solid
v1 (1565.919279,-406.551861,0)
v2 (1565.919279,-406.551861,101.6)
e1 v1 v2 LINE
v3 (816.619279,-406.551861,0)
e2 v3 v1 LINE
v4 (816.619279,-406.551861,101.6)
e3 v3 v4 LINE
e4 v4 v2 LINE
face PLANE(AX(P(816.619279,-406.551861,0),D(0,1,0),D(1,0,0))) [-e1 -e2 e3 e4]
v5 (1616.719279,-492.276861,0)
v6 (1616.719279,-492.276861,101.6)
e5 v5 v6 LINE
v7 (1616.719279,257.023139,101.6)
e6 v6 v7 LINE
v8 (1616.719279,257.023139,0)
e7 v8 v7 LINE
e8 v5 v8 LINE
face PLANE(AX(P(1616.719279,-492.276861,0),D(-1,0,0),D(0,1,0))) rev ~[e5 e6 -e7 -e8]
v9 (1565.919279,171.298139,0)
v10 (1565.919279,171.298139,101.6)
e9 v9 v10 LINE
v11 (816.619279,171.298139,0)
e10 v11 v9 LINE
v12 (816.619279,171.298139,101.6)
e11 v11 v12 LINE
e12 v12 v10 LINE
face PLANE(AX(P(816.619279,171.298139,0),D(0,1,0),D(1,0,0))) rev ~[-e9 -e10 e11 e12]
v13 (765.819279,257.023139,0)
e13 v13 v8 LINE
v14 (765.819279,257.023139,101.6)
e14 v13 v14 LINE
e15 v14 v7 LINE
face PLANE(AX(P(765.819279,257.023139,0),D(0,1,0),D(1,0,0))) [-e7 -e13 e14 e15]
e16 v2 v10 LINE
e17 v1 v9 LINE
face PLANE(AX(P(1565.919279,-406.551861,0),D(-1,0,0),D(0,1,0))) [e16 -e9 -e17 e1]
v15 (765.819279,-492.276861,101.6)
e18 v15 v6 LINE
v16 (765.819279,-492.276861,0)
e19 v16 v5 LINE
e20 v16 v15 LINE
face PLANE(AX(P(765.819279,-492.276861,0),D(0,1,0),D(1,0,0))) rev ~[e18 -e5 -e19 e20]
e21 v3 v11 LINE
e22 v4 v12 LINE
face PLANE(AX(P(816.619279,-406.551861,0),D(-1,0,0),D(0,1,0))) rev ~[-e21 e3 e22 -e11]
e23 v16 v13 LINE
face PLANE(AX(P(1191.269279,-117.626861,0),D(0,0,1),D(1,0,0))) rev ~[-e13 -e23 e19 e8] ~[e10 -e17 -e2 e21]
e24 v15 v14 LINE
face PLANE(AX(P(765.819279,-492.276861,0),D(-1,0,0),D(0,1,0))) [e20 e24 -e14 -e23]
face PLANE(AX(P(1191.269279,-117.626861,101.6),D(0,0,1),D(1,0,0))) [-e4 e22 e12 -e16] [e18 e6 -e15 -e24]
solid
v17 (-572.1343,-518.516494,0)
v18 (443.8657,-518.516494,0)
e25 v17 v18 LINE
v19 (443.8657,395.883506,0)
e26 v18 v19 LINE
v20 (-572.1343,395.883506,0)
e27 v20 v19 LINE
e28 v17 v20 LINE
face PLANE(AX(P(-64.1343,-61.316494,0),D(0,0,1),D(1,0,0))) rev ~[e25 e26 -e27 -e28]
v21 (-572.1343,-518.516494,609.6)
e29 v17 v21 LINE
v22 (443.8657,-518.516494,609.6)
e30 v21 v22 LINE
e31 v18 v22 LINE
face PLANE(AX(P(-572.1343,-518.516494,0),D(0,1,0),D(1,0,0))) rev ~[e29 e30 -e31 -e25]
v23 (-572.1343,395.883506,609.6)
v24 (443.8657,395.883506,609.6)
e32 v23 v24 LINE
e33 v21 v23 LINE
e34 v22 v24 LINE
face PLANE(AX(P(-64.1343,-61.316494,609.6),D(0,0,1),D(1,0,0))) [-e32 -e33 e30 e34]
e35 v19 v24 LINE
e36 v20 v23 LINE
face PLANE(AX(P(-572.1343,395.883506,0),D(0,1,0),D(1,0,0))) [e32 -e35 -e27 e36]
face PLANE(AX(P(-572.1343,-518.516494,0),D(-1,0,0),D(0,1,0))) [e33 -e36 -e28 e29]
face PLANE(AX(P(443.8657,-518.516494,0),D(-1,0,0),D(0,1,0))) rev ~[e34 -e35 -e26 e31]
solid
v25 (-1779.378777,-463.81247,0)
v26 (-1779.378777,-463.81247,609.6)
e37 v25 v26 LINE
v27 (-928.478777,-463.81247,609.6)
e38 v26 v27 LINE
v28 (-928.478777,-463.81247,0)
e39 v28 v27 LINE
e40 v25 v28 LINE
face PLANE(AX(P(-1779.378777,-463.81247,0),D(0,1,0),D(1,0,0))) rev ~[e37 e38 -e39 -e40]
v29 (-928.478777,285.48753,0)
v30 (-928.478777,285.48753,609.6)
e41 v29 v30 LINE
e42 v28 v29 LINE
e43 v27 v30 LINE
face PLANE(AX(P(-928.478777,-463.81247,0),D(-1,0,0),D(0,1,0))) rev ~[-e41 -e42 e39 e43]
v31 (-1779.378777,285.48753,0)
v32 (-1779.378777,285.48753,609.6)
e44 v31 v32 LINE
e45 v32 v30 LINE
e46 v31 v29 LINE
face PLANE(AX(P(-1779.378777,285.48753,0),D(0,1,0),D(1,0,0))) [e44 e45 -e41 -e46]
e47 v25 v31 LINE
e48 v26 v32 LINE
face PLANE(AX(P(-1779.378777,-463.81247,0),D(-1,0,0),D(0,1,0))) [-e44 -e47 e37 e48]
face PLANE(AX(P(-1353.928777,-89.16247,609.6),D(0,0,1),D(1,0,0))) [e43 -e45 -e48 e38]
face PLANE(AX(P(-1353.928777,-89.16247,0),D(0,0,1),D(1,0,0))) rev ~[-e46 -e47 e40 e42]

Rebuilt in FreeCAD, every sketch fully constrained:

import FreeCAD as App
import Part
import Sketcher

V = App.Vector
Q = App.Units.Quantity


def add_polygon(sketch, points):
    """Adds a closed chain of lines whose ends are joined by coincident constraints."""
    first, n = sketch.GeometryCount, len(points)
    for a, b in zip(points, points[1:] + points[:1]):
        sketch.addGeometry(Part.LineSegment(App.Vector(*a, 0), App.Vector(*b, 0)), False)
    for i in range(n):
        sketch.addConstraint(Sketcher.Constraint("Coincident", first + i, 2, first + (i + 1) % n, 1))

doc = App.newDocument("Part")
body = doc.addObject("PartDesign::Body", "Body")

# Sketch on XY plane
sketch1 = body.newObject("Sketcher::SketchObject", "Sketch")
sketch1.AttachmentSupport = (doc.getObject("XY_Plane"), [""])
sketch1.MapMode = "FlatFace"
add_polygon(sketch1, [(-572, 396), (-572, -519), (444, -519), (444, 396)])  # lines 0-3
sketch1.addConstraint(Sketcher.Constraint("Vertical", 0))
sketch1.addConstraint(Sketcher.Constraint("Horizontal", 1))
sketch1.addConstraint(Sketcher.Constraint("Vertical", 2))
sketch1.addConstraint(Sketcher.Constraint("Horizontal", 3))
sketch1.addConstraint(Sketcher.Constraint("DistanceX", 1, 1, 1, 2, Q("40 in")))
sketch1.addConstraint(Sketcher.Constraint("DistanceY", 0, 2, 0, 1, Q("36 in")))
sketch1.addConstraint(Sketcher.Constraint("DistanceX", 0, 2, -1, 1, Q("572.1343 mm")))
sketch1.addConstraint(Sketcher.Constraint("DistanceY", 0, 2, -1, 1, Q("518.516494 mm")))
pad1 = body.newObject("PartDesign::Pad", "Pad")
pad1.Profile = sketch1
pad1.Length = Q("24 in")
body2 = doc.addObject("PartDesign::Body", "Body001")

# Sketch on XY plane
sketch2 = body2.newObject("Sketcher::SketchObject", "Sketch001")
sketch2.AttachmentSupport = (doc.getObject("XY_Plane001"), [""])
sketch2.MapMode = "FlatFace"
add_polygon(sketch2, [(-1779, 285), (-1779, -464), (-928, -464), (-928, 285)])  # lines 0-3
sketch2.addConstraint(Sketcher.Constraint("Vertical", 0))
sketch2.addConstraint(Sketcher.Constraint("Horizontal", 1))
sketch2.addConstraint(Sketcher.Constraint("Vertical", 2))
sketch2.addConstraint(Sketcher.Constraint("Horizontal", 3))
sketch2.addConstraint(Sketcher.Constraint("DistanceX", 1, 1, 1, 2, Q("33.5 in")))
sketch2.addConstraint(Sketcher.Constraint("DistanceY", 0, 2, 0, 1, Q("29.5 in")))
sketch2.addConstraint(Sketcher.Constraint("DistanceY", 0, 2, -1, 1, Q("463.81247 mm")))
sketch2.addConstraint(Sketcher.Constraint("DistanceX", 0, 2, -1, 1, Q("1779.378777 mm")))
pad2 = body2.newObject("PartDesign::Pad", "Pad001")
pad2.Profile = sketch2
pad2.Length = Q("24 in")
body3 = doc.addObject("PartDesign::Body", "Body002")

# Sketch on XY plane
sketch3 = body3.newObject("Sketcher::SketchObject", "Sketch002")
sketch3.AttachmentSupport = (doc.getObject("XY_Plane002"), [""])
sketch3.MapMode = "FlatFace"
add_polygon(sketch3, [(766, 257), (766, -492), (1617, -492), (1617, 257)])  # lines 0-3
add_polygon(sketch3, [(1566, -407), (817, -407), (817, 171), (1566, 171)])  # lines 4-7
sketch3.addConstraint(Sketcher.Constraint("Vertical", 0))
sketch3.addConstraint(Sketcher.Constraint("Horizontal", 1))
sketch3.addConstraint(Sketcher.Constraint("Vertical", 2))
sketch3.addConstraint(Sketcher.Constraint("Horizontal", 3))
sketch3.addConstraint(Sketcher.Constraint("Horizontal", 4))
sketch3.addConstraint(Sketcher.Constraint("Vertical", 5))
sketch3.addConstraint(Sketcher.Constraint("Horizontal", 6))
sketch3.addConstraint(Sketcher.Constraint("Vertical", 7))
sketch3.addConstraint(Sketcher.Constraint("Equal", 6, 0))
sketch3.addConstraint(Sketcher.Constraint("DistanceX", 1, 1, 1, 2, Q("33.5 in")))
sketch3.addConstraint(Sketcher.Constraint("DistanceX", 4, 2, 4, 1, Q("29.5 in")))
sketch3.addConstraint(Sketcher.Constraint("DistanceX", 0, 2, 4, 2, Q("2 in")))
sketch3.addConstraint(Sketcher.Constraint("DistanceY", 5, 1, 5, 2, Q("22.75 in")))
sketch3.addConstraint(Sketcher.Constraint("DistanceY", 0, 2, 4, 2, Q("3.375 in")))
sketch3.addConstraint(Sketcher.Constraint("DistanceX", -1, 1, 0, 2, Q("765.819279 mm")))
sketch3.addConstraint(Sketcher.Constraint("DistanceY", 0, 2, -1, 1, Q("492.276861 mm")))
pad3 = body3.newObject("PartDesign::Pad", "Pad002")
pad3.Profile = sketch3
pad3.Length = Q("4 in")

doc.recompute()
